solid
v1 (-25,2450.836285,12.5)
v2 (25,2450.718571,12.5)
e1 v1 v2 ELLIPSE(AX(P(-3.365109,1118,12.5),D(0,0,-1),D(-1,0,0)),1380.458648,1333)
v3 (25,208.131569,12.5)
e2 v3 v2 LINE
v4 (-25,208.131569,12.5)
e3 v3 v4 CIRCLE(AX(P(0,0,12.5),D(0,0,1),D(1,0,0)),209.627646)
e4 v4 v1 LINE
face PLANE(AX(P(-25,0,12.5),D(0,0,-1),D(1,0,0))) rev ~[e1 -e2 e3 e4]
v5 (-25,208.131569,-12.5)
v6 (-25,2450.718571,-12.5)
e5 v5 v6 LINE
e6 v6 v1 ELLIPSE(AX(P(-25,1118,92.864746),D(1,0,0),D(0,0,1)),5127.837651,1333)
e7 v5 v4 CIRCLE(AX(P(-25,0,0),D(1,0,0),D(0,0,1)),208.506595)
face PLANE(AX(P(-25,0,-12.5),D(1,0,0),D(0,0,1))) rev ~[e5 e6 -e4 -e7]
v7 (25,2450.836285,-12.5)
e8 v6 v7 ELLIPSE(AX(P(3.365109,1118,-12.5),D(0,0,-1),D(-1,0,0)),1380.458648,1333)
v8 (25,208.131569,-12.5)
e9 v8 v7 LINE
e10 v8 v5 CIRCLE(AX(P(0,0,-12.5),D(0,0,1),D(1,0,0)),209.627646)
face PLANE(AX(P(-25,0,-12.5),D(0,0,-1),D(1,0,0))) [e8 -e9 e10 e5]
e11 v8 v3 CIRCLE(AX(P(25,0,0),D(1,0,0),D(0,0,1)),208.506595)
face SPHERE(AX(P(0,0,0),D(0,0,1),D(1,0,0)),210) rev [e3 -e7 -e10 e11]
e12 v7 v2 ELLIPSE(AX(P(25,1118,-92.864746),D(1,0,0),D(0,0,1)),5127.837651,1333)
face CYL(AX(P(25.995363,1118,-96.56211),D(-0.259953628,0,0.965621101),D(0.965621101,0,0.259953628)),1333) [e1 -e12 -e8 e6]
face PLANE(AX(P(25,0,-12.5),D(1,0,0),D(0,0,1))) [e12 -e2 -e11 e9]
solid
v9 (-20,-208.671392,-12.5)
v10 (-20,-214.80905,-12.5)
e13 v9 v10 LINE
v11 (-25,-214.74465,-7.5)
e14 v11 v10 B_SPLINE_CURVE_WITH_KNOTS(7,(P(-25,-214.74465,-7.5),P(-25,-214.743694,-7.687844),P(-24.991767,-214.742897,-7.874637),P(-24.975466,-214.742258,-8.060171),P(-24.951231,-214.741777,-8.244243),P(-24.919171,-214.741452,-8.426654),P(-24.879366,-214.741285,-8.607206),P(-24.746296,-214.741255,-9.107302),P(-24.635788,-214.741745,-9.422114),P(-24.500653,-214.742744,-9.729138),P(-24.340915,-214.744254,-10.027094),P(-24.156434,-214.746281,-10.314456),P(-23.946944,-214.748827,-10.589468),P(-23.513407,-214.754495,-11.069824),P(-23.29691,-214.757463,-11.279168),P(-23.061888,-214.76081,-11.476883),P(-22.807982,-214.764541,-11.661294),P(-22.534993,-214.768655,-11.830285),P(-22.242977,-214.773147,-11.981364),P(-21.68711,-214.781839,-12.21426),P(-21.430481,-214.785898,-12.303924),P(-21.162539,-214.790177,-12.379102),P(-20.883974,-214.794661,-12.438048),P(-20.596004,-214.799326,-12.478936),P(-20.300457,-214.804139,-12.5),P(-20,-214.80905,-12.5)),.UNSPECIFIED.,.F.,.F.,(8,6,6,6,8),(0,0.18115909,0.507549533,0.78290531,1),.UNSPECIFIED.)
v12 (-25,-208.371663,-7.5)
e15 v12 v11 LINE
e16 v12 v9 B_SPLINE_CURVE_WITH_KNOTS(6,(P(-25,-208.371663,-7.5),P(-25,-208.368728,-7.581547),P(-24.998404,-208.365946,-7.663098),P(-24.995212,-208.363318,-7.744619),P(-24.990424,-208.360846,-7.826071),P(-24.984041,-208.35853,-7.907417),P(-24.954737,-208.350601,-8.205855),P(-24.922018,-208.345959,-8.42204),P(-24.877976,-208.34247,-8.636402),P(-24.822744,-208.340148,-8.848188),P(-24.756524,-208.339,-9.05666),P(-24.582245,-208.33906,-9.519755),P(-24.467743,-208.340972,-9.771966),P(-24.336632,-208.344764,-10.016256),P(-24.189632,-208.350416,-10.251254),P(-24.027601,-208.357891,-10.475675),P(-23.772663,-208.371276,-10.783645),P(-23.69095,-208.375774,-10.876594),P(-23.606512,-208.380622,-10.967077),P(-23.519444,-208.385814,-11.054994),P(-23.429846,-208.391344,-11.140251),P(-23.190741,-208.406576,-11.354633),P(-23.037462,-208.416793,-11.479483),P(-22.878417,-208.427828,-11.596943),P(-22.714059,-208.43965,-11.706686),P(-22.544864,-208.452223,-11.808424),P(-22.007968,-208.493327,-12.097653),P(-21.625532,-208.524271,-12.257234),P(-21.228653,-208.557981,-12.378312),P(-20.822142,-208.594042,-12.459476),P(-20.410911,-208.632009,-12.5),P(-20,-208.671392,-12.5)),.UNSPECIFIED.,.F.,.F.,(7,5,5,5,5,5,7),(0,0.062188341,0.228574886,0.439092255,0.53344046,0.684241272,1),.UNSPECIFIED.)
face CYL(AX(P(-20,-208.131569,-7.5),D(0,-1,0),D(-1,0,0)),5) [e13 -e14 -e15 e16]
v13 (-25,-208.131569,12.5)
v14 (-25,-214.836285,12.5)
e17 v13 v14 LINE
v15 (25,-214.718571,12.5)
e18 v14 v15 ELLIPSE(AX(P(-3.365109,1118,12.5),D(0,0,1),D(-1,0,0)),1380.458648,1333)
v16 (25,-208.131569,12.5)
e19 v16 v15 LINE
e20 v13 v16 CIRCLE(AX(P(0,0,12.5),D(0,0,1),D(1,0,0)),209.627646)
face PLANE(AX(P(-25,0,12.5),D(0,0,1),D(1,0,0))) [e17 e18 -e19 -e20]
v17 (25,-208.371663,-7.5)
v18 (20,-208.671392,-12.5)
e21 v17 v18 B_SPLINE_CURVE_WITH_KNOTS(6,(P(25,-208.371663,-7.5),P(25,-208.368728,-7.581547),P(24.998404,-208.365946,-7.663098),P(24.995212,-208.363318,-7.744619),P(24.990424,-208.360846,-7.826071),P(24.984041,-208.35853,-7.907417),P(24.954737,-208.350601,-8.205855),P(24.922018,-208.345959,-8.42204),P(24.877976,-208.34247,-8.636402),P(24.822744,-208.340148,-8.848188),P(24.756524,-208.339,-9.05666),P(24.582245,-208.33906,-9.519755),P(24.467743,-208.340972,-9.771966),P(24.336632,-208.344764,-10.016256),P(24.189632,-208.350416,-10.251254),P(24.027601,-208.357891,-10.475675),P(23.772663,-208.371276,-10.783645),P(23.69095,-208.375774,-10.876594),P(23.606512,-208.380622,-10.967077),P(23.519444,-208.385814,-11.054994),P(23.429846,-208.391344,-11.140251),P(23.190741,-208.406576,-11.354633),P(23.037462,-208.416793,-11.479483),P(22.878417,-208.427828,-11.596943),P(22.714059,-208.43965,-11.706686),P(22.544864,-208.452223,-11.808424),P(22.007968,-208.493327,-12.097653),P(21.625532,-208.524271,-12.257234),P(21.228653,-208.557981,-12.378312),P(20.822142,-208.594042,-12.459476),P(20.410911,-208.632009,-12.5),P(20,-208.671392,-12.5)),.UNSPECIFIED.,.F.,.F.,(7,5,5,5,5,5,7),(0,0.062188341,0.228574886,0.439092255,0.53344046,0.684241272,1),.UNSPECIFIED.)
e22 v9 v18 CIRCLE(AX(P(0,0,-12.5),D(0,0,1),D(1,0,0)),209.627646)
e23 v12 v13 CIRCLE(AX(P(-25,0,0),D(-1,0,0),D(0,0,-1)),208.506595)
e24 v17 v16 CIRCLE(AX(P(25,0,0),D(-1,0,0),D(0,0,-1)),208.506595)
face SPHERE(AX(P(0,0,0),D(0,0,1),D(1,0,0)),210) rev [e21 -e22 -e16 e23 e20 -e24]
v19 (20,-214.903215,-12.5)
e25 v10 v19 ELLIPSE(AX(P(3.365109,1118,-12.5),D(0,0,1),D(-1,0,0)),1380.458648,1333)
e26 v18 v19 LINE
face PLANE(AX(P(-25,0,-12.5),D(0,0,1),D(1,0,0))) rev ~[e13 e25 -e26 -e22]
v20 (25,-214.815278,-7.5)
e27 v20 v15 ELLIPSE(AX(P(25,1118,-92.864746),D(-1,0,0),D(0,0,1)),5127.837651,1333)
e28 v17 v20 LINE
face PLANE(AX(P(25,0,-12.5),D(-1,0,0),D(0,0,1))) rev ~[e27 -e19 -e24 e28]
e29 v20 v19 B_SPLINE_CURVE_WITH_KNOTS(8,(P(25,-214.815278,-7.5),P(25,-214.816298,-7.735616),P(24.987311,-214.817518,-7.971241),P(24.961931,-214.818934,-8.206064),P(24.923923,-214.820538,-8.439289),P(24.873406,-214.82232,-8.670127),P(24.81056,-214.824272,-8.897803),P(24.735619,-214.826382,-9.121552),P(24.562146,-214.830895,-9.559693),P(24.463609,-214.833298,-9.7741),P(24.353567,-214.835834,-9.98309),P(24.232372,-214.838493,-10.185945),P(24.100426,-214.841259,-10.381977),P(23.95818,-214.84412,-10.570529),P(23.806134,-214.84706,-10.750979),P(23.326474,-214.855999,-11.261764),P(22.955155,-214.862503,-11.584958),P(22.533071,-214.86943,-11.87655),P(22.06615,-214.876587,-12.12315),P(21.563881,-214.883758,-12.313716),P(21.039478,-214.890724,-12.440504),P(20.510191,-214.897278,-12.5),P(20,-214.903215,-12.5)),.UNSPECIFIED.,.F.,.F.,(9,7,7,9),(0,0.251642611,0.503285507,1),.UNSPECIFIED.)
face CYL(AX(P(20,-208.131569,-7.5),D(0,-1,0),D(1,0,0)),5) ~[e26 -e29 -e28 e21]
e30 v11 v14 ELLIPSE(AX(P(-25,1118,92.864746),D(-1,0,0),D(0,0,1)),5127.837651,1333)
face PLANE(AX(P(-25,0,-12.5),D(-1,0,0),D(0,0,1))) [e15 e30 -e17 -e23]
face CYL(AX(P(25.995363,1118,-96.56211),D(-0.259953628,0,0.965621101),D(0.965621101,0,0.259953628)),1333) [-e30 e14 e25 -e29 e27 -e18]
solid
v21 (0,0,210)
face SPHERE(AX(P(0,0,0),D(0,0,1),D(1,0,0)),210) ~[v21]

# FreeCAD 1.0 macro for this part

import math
import FreeCAD as App
import Part
import Sketcher
from FreeCAD import Vector
Q = App.Units.Quantity


def edges_at(feature, points):
    """Names of the edges that pass closest to the given points."""
    edges = feature.Shape.Edges
    near = lambda p: min(range(len(edges)), key=lambda i: edges[i].distToShape(Part.Vertex(*p))[0])
    return sorted({f"Edge{near(p) + 1}" for p in points})

doc = App.newDocument("Part")
body = doc.addObject("PartDesign::Body", "Body")

sketch1 = body.newObject("Sketcher::SketchObject", "Sketch")
sketch1.AttachmentSupport = (doc.getObject("XZ_Plane"), [""])
sketch1.MapMode = "FlatFace"
sketch1.addGeometry([
    Part.ArcOfCircle(Part.Circle(Vector(0, 0, 0), Vector(0, 0, 1), 210), math.radians(-90), math.radians(90)),
    Part.LineSegment(Vector(0, 210, 0), Vector(0, -210, 0)),
], False)
sketch1.addConstraint([
    Sketcher.Constraint("Coincident", 0, 1, 1, 2),
    Sketcher.Constraint("Coincident", 1, 1, 0, 2),
    Sketcher.Constraint("Vertical", 1),
    Sketcher.Constraint("Coincident", 0, 3, -1, 1),
    Sketcher.Constraint("PointOnObject", 0, 1, -2),
    Sketcher.Constraint("Radius", 0, Q("210 mm")),
])
revolution = body.newObject("PartDesign::Revolution", "Revolution")
revolution.Profile = sketch1
revolution.ReferenceAxis = (sketch1, ["V_Axis"])
revolution.Angle = 360
body2 = doc.addObject("PartDesign::Body", "Body001")
body2.AllowCompound = True

sketch2 = body2.newObject("Sketcher::SketchObject", "Sketch001")
sketch2.AttachmentSupport = (doc.getObject("XZ_Plane001"), [""])
sketch2.MapMode = "FlatFace"
sketch2.AttachmentOffset = App.Placement(Vector(0, 0, -1118), App.Rotation())
sketch2.addGeometry([
    Part.LineSegment(Vector(-26, 98, 0), Vector(26, -95, 0)),
    Part.LineSegment(Vector(26, -95, 0), Vector(1313, 250, 0)),
    Part.LineSegment(Vector(1313, 250, 0), Vector(1261, 443, 0)),
    Part.LineSegment(Vector(1261, 443, 0), Vector(-26, 98, 0)),
], False)
sketch2.addGeometry(Part.LineSegment(Vector(26, -97, 0), Vector(-26, 98, 0)), True)
sketch2.addConstraint([
    Sketcher.Constraint("Coincident", 0, 2, 1, 1),
    Sketcher.Constraint("Coincident", 1, 2, 2, 1),
    Sketcher.Constraint("Coincident", 2, 2, 3, 1),
    Sketcher.Constraint("Coincident", 3, 2, 0, 1),
    Sketcher.Constraint("Coincident", 4, 2, 3, 2),
    Sketcher.Constraint("Parallel", 0, 2),
    Sketcher.Constraint("Parallel", 1, 3),
    Sketcher.Constraint("Parallel", 2, 4),
    Sketcher.Constraint("Distance", 0, Q("200 mm")),
    Sketcher.Constraint("DistanceX", -1, 1, 0, 2, Q("25.676929 mm")),
    Sketcher.Constraint("DistanceY", 0, 2, -1, 1, Q("95.37926 mm")),
    Sketcher.Constraint("DistanceX", -1, 1, 1, 2, Q("1313.168291 mm")),
    Sketcher.Constraint("DistanceY", -1, 1, 3, 2, Q("97.74496 mm")),
    Sketcher.Constraint("DistanceY", 4, 1, -1, 1, Q("96.56211 mm")),
    Sketcher.Constraint("Distance", 1, Q("1333.000563 mm")),
])
revolution2 = body2.newObject("PartDesign::Revolution", "Revolution001")
revolution2.Profile = sketch2
revolution2.ReferenceAxis = (sketch2, ["Axis0"])
revolution2.Angle = 360
doc.recompute()

body3 = doc.addObject("PartDesign::Body", "Body002")
body3.BaseFeature = body
boolean = body2.newObject("PartDesign::Boolean", "Boolean")
boolean.Type = "Cut"
boolean.addObjects([body3])
doc.recompute()

sketch3 = body2.newObject("Sketcher::SketchObject", "Sketch002")
sketch3.AttachmentSupport = (doc.getObject("XZ_Plane001"), [""])
sketch3.MapMode = "FlatFace"
sketch3.addGeometry([
    Part.LineSegment(Vector(-1644, 1393, 0), Vector(-1644, -1393, 0)),
    Part.LineSegment(Vector(-1644, -1393, 0), Vector(1644, -1393, 0)),
    Part.LineSegment(Vector(1644, -1393, 0), Vector(1644, 1393, 0)),
    Part.LineSegment(Vector(1644, 1393, 0), Vector(-1644, 1393, 0)),
    Part.LineSegment(Vector(25, -12, 0), Vector(-25, -12, 0)),
    Part.LineSegment(Vector(-25, -12, 0), Vector(-25, 12, 0)),
    Part.LineSegment(Vector(-25, 12, 0), Vector(25, 12, 0)),
    Part.LineSegment(Vector(25, 12, 0), Vector(25, -12, 0)),
], False)
sketch3.addConstraint([
    Sketcher.Constraint("Coincident", 0, 2, 1, 1),
    Sketcher.Constraint("Coincident", 1, 2, 2, 1),
    Sketcher.Constraint("Coincident", 2, 2, 3, 1),
    Sketcher.Constraint("Coincident", 3, 2, 0, 1),
    Sketcher.Constraint("Coincident", 4, 2, 5, 1),
    Sketcher.Constraint("Coincident", 5, 2, 6, 1),
    Sketcher.Constraint("Coincident", 6, 2, 7, 1),
    Sketcher.Constraint("Coincident", 7, 2, 4, 1),
    Sketcher.Constraint("Vertical", 0),
    Sketcher.Constraint("Horizontal", 1),
    Sketcher.Constraint("Vertical", 2),
    Sketcher.Constraint("Horizontal", 3),
    Sketcher.Constraint("Horizontal", 4),
    Sketcher.Constraint("Vertical", 5),
    Sketcher.Constraint("Horizontal", 6),
    Sketcher.Constraint("Vertical", 7),
    Sketcher.Constraint("Symmetric", 0, 2, 2, 2, -1, 1),
    Sketcher.Constraint("Symmetric", 4, 2, 6, 2, -1, 1),
    Sketcher.Constraint("DistanceX", 4, 2, 4, 1, Q("50 mm")),
    Sketcher.Constraint("DistanceY", 5, 1, 5, 2, Q("25 mm")),
    Sketcher.Constraint("DistanceX", 1, 1, 1, 2, Q("3288.277864 mm")),
    Sketcher.Constraint("DistanceY", 0, 2, 0, 1, Q("2785.372734 mm")),
])
pocket1 = body2.newObject("PartDesign::Pocket", "Pocket")
pocket1.Profile = sketch3
pocket1.Type = "ThroughAll"
pocket1.Midplane = True
doc.recompute()

fillet = body2.newObject("PartDesign::Fillet", "Fillet")
fillet.Base = (pocket1, edges_at(pocket1, [(-25, -211.425, -12.5), (25, -211.484, -12.5)]))
fillet.Radius = 5

doc.recompute()
